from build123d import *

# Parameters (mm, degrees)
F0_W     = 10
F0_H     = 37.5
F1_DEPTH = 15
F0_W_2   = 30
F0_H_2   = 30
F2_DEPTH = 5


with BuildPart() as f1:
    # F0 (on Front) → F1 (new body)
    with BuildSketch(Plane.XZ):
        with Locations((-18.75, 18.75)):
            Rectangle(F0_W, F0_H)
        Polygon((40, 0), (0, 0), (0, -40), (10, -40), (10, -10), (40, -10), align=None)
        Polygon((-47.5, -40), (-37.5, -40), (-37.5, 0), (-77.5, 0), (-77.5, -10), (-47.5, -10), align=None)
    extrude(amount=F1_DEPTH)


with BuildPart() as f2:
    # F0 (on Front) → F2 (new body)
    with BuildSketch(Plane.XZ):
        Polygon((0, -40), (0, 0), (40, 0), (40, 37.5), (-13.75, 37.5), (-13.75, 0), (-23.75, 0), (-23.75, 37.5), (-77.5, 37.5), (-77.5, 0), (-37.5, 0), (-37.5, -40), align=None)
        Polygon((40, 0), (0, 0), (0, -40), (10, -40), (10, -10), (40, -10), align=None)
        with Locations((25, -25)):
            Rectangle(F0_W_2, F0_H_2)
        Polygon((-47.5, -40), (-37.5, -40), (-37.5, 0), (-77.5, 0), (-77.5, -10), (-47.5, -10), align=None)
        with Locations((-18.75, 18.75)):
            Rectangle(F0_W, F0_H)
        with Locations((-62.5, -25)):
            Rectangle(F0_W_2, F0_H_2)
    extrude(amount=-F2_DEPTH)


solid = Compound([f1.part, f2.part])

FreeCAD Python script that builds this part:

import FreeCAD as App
import Part
import Sketcher

doc = App.newDocument("Part")
params = doc.addObject("Spreadsheet::Sheet", "Params")
for row, (alias, value) in enumerate([
    ("sketch1_width", "10 mm"),
    ("sketch1_width2", "40 mm"),
    ("sketch1_height", "37.5 mm"),
    ("pad1_length", "15 mm"),
    ("sketch2_width", "117.5 mm"),
    ("sketch2_height", "77.5 mm"),
    ("pad2_length", "5 mm"),
], start=1):
    params.set(f"A{row}", alias)
    params.set(f"B{row}", "=" + value)
    params.setAlias(f"B{row}", alias)

body = doc.addObject("PartDesign::Body", "Body")
body.AllowCompound = True

# Sketch on XZ plane
sketch1 = body.newObject("Sketcher::SketchObject", "Sketch")
sketch1.AttachmentSupport = (doc.getObject("XZ_Plane"), [""])
sketch1.MapMode = "FlatFace"
sketch1.addGeometry([
    Part.LineSegment(App.Vector(-23.75, 37.5, 0), App.Vector(-23.75, 0, 0)),  # 0
    Part.LineSegment(App.Vector(-23.75, 0, 0), App.Vector(-13.75, 0, 0)),  # 1
    Part.LineSegment(App.Vector(-13.75, 0, 0), App.Vector(-13.75, 37.5, 0)),  # 2
    Part.LineSegment(App.Vector(-13.75, 37.5, 0), App.Vector(-23.75, 37.5, 0)),  # 3
    Part.LineSegment(App.Vector(40, 0, 0), App.Vector(0, 0, 0)),  # 4
    Part.LineSegment(App.Vector(0, 0, 0), App.Vector(0, -40, 0)),  # 5
    Part.LineSegment(App.Vector(0, -40, 0), App.Vector(10, -40, 0)),  # 6
    Part.LineSegment(App.Vector(10, -40, 0), App.Vector(10, -10, 0)),  # 7
    Part.LineSegment(App.Vector(10, -10, 0), App.Vector(40, -10, 0)),  # 8
    Part.LineSegment(App.Vector(40, -10, 0), App.Vector(40, 0, 0)),  # 9
    Part.LineSegment(App.Vector(-47.5, -40, 0), App.Vector(-37.5, -40, 0)),  # 10
    Part.LineSegment(App.Vector(-37.5, -40, 0), App.Vector(-37.5, 0, 0)),  # 11
    Part.LineSegment(App.Vector(-37.5, 0, 0), App.Vector(-77.5, 0, 0)),  # 12
    Part.LineSegment(App.Vector(-77.5, 0, 0), App.Vector(-77.5, -10, 0)),  # 13
    Part.LineSegment(App.Vector(-77.5, -10, 0), App.Vector(-47.5, -10, 0)),  # 14
    Part.LineSegment(App.Vector(-47.5, -10, 0), App.Vector(-47.5, -40, 0)),  # 15
], False)
sketch1.addConstraint([
    Sketcher.Constraint("Coincident", 0, 2, 1, 1),
    Sketcher.Constraint("Coincident", 1, 2, 2, 1),
    Sketcher.Constraint("Coincident", 2, 2, 3, 1),
    Sketcher.Constraint("Coincident", 3, 2, 0, 1),
    Sketcher.Constraint("Coincident", 4, 2, 5, 1),
    Sketcher.Constraint("Coincident", 5, 2, 6, 1),
    Sketcher.Constraint("Coincident", 6, 2, 7, 1),
    Sketcher.Constraint("Coincident", 7, 2, 8, 1),
    Sketcher.Constraint("Coincident", 8, 2, 9, 1),
    Sketcher.Constraint("Coincident", 9, 2, 4, 1),
    Sketcher.Constraint("Coincident", 10, 2, 11, 1),
    Sketcher.Constraint("Coincident", 11, 2, 12, 1),
    Sketcher.Constraint("Coincident", 12, 2, 13, 1),
    Sketcher.Constraint("Coincident", 13, 2, 14, 1),
    Sketcher.Constraint("Coincident", 14, 2, 15, 1),
    Sketcher.Constraint("Coincident", 15, 2, 10, 1),
    Sketcher.Constraint("Vertical", 0),
    Sketcher.Constraint("Horizontal", 1),
    Sketcher.Constraint("Vertical", 2),
    Sketcher.Constraint("Horizontal", 3),
    Sketcher.Constraint("Horizontal", 4),
    Sketcher.Constraint("Vertical", 5),
    Sketcher.Constraint("Horizontal", 6),
    Sketcher.Constraint("Vertical", 7),
    Sketcher.Constraint("Horizontal", 8),
    Sketcher.Constraint("Vertical", 9),
    Sketcher.Constraint("Horizontal", 10),
    Sketcher.Constraint("Vertical", 11),
    Sketcher.Constraint("Horizontal", 12),
    Sketcher.Constraint("Vertical", 13),
    Sketcher.Constraint("Horizontal", 14),
    Sketcher.Constraint("Vertical", 15),
    Sketcher.Constraint("Coincident", 4, 2, -1, 1),
    Sketcher.Constraint("PointOnObject", 0, 2, -1),
    Sketcher.Constraint("PointOnObject", 11, 2, -1),
    Sketcher.Constraint("Horizontal", 6, 2, 10, 2),
    Sketcher.Constraint("Horizontal", 8, 2, 13, 2),
    Sketcher.Constraint("Equal", 3, 6),
    Sketcher.Constraint("Equal", 6, 10),
    Sketcher.Constraint("Equal", 4, 12),
    Sketcher.Constraint("Equal", 12, 5),
    Sketcher.Constraint("Equal", 14, 7),
    Sketcher.Constraint("DistanceX", 1, 1, 1, 2, 10.0),
    Sketcher.Constraint("DistanceX", 4, 2, 4, 1, 40.0),
    Sketcher.Constraint("DistanceY", 0, 2, 0, 1, 37.5),
    Sketcher.Constraint("DistanceX", 10, 2, -1, 1, 37.5),
    Sketcher.Constraint("DistanceX", 0, 2, -1, 1, 23.75),
])
sketch1.setExpression("Constraints[42]", "Params.sketch1_width")
sketch1.setExpression("Constraints[43]", "Params.sketch1_width2")
sketch1.setExpression("Constraints[44]", "Params.sketch1_height")
pad1 = body.newObject("PartDesign::Pad", "Pad")
pad1.Profile = sketch1
pad1.setExpression("Length", "Params.pad1_length")
body2 = doc.addObject("PartDesign::Body", "Body001")

# Sketch on XZ plane
sketch2 = body2.newObject("Sketcher::SketchObject", "Sketch001")
sketch2.AttachmentSupport = (doc.getObject("XZ_Plane001"), [""])
sketch2.MapMode = "FlatFace"
sketch2.addGeometry([
    Part.LineSegment(App.Vector(40, 37.5, 0), App.Vector(-77.5, 37.5, 0)),
    Part.LineSegment(App.Vector(-77.5, 37.5, 0), App.Vector(-77.5, -40, 0)),
    Part.LineSegment(App.Vector(-77.5, -40, 0), App.Vector(40, -40, 0)),
    Part.LineSegment(App.Vector(40, -40, 0), App.Vector(40, 37.5, 0)),
], False)
sketch2.addConstraint([
    Sketcher.Constraint("Coincident", 0, 2, 1, 1),
    Sketcher.Constraint("Coincident", 1, 2, 2, 1),
    Sketcher.Constraint("Coincident", 2, 2, 3, 1),
    Sketcher.Constraint("Coincident", 3, 2, 0, 1),
    Sketcher.Constraint("Horizontal", 0),
    Sketcher.Constraint("Vertical", 1),
    Sketcher.Constraint("Horizontal", 2),
    Sketcher.Constraint("Vertical", 3),
    Sketcher.Constraint("DistanceX", 0, 2, 0, 1, 117.5),
    Sketcher.Constraint("DistanceY", 1, 2, 1, 1, 77.5),
    Sketcher.Constraint("DistanceY", 1, 2, -1, 1, 40.0),
    Sketcher.Constraint("DistanceX", -1, 1, 2, 2, 40.0),
])
sketch2.setExpression("Constraints[8]", "Params.sketch2_width")
sketch2.setExpression("Constraints[9]", "Params.sketch2_height")
pad2 = body2.newObject("PartDesign::Pad", "Pad001")
pad2.Profile = sketch2
pad2.setExpression("Length", "Params.pad2_length")
pad2.Reversed = True

doc.recompute()
